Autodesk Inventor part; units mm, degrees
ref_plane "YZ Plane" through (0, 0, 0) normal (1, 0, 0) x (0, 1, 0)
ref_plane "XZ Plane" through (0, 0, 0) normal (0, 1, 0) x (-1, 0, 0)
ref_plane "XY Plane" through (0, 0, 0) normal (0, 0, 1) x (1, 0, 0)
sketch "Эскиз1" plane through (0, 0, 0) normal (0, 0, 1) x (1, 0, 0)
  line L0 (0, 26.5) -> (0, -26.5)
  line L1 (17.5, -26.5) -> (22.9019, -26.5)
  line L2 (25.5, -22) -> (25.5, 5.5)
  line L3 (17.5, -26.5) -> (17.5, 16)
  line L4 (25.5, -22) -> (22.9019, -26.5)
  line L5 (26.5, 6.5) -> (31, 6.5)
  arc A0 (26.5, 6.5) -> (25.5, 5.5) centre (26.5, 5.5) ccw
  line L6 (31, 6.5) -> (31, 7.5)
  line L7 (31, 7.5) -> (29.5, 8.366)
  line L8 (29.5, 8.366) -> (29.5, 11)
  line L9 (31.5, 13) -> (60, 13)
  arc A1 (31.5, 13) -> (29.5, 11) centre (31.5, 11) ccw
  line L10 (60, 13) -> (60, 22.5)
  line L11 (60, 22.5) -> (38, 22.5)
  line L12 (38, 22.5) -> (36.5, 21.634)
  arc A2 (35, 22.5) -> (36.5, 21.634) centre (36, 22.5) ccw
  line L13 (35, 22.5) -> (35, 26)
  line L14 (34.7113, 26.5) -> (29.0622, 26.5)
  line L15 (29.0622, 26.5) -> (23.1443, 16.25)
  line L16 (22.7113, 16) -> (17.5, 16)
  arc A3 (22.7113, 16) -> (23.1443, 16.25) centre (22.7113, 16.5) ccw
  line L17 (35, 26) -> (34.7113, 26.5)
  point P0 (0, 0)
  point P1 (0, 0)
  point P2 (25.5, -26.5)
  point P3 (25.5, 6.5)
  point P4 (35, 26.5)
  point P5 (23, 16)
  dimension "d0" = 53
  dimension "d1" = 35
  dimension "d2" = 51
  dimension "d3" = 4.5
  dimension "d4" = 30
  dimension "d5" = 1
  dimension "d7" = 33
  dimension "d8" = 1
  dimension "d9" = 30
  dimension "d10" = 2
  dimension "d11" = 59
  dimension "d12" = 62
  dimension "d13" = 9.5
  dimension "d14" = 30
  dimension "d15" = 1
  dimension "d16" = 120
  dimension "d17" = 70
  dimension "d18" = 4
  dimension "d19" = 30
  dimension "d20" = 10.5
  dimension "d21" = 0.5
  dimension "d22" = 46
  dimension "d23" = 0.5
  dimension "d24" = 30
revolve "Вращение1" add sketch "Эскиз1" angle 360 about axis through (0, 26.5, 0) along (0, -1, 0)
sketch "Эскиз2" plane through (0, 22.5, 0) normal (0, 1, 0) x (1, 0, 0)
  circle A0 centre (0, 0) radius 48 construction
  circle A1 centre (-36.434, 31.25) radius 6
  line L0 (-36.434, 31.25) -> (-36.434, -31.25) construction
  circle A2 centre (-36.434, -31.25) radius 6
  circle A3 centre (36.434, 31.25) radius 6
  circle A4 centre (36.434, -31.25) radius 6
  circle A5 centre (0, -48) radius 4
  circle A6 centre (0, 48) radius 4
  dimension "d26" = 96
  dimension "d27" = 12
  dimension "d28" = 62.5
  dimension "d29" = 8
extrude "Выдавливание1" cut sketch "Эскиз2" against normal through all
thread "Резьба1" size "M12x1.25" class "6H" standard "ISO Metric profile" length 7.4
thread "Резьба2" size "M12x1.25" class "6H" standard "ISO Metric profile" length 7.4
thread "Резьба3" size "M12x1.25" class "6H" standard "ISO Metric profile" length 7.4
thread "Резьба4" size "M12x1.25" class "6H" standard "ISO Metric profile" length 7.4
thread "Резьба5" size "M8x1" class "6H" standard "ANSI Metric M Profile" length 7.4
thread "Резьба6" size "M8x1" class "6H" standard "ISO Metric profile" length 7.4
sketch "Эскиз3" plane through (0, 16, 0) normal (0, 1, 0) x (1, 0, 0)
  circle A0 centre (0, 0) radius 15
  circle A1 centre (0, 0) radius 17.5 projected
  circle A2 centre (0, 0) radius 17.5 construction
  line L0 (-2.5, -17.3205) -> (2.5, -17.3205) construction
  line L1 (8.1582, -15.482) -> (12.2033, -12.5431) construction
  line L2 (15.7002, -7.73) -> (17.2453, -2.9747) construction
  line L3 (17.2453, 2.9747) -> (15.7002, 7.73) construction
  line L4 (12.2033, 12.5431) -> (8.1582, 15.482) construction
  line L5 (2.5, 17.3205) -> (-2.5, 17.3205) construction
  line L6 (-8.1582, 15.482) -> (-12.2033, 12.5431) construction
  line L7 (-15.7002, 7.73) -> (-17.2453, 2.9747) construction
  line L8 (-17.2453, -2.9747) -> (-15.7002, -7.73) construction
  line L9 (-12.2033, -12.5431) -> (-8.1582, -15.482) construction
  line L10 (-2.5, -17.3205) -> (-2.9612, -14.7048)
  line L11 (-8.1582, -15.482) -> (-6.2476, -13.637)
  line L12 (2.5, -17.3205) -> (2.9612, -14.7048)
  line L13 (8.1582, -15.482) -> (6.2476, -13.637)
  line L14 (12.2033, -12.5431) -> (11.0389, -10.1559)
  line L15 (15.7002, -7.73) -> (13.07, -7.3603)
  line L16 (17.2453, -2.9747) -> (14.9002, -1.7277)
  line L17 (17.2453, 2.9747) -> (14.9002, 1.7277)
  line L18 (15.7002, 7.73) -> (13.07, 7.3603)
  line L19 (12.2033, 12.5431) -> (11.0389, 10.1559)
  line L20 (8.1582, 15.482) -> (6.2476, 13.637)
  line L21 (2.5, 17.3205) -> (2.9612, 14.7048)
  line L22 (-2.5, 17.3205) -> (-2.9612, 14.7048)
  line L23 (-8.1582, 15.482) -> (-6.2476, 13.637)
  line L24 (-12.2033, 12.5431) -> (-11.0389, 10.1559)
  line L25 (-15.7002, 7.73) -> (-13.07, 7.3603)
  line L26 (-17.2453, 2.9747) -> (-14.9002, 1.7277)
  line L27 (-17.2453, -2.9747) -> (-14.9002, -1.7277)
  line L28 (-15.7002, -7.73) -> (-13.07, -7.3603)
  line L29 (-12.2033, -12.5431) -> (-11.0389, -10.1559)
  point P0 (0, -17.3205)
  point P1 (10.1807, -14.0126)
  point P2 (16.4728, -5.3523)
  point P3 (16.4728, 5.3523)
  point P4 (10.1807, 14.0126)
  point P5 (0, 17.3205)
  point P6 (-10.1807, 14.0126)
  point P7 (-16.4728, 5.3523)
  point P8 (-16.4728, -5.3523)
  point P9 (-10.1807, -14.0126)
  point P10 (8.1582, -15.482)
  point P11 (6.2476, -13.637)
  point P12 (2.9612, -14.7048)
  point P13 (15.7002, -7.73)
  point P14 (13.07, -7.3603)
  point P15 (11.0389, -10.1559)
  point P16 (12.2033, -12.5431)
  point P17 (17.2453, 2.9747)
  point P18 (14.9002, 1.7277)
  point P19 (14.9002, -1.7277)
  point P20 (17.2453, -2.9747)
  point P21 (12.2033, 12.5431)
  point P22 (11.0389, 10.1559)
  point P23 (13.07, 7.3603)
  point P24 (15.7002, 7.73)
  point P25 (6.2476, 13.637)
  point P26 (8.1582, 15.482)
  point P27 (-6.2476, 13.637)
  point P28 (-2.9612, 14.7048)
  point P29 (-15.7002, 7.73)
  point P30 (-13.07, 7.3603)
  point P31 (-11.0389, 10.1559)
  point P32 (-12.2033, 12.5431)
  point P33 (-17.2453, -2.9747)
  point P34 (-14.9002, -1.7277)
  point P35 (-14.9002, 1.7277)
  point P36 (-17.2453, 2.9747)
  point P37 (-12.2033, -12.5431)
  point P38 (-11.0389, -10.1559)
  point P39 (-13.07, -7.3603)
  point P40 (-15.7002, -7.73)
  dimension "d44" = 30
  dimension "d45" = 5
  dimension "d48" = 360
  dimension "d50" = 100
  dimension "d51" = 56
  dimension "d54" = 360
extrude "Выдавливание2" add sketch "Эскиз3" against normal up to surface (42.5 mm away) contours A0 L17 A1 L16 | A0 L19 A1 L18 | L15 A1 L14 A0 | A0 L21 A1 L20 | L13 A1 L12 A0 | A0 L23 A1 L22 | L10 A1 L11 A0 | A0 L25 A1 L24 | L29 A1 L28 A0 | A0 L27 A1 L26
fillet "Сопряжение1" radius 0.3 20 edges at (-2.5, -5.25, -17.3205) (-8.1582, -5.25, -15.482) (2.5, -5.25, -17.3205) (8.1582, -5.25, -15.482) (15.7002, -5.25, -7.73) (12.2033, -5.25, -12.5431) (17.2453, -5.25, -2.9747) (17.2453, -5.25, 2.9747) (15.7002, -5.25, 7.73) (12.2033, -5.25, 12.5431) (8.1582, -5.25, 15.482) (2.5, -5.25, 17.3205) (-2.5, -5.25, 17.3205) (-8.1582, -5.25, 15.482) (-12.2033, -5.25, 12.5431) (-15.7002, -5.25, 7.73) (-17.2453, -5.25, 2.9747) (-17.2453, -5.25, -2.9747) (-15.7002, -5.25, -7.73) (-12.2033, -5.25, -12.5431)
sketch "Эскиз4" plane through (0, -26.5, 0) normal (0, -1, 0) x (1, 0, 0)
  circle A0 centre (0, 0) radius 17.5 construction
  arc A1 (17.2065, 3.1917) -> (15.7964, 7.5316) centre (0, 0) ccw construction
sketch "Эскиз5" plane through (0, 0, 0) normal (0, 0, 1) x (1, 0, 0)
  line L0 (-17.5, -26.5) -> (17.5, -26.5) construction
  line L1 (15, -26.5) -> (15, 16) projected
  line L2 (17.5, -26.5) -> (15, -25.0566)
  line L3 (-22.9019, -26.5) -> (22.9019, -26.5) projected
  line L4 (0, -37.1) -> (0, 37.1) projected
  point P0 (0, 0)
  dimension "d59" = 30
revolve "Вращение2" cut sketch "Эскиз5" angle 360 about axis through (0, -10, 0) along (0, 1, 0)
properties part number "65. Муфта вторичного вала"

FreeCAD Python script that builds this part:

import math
import FreeCAD as App
import Part
import Sketcher
Q = App.Units.Quantity


def edges_at(feature, points):
    """Names of the edges that pass closest to the given points."""
    edges = feature.Shape.Edges
    near = lambda p: min(range(len(edges)), key=lambda i: edges[i].distToShape(Part.Vertex(*p))[0])
    return sorted({f"Edge{near(p) + 1}" for p in points})


def add_polygon(sketch, points):
    """Adds a closed chain of lines whose ends are joined by coincident constraints."""
    first, n = sketch.GeometryCount, len(points)
    for a, b in zip(points, points[1:] + points[:1]):
        sketch.addGeometry(Part.LineSegment(App.Vector(*a, 0), App.Vector(*b, 0)), False)
    for i in range(n):
        sketch.addConstraint(Sketcher.Constraint("Coincident", first + i, 2, first + (i + 1) % n, 1))

doc = App.newDocument("Part")
body = doc.addObject("PartDesign::Body", "Body")

# Sketch on XY plane
sketch1 = body.newObject("Sketcher::SketchObject", "Sketch")
sketch1.AttachmentSupport = (doc.getObject("XY_Plane"), [""])
sketch1.MapMode = "FlatFace"
sketch1.addGeometry([
    Part.LineSegment(App.Vector(17.5, 16, 0), App.Vector(17.5, -26.5, 0)),  # 0
    Part.LineSegment(App.Vector(17.5, -26.5, 0), App.Vector(22.9019, -26.5, 0)),  # 1
    Part.LineSegment(App.Vector(22.9019, -26.5, 0), App.Vector(25.5, -22, 0)),  # 2
    Part.LineSegment(App.Vector(25.5, -22, 0), App.Vector(25.5, 5.5, 0)),  # 3
    Part.ArcOfCircle(Part.Circle(App.Vector(26.5, 5.5, 0), App.Vector(0, 0, 1), 1), math.radians(90), math.radians(180)),  # 4
    Part.LineSegment(App.Vector(26.5, 6.5, 0), App.Vector(31, 6.5, 0)),  # 5
    Part.LineSegment(App.Vector(31, 6.5, 0), App.Vector(31, 7.5, 0)),  # 6
    Part.LineSegment(App.Vector(31, 7.5, 0), App.Vector(29.5, 8.366, 0)),  # 7
    Part.LineSegment(App.Vector(29.5, 8.366, 0), App.Vector(29.5, 11, 0)),  # 8
    Part.ArcOfCircle(Part.Circle(App.Vector(31.5, 11, 0), App.Vector(0, 0, 1), 2), math.radians(90), math.radians(180)),  # 9
    Part.LineSegment(App.Vector(31.5, 13, 0), App.Vector(60, 13, 0)),  # 10
    Part.LineSegment(App.Vector(60, 13, 0), App.Vector(60, 22.5, 0)),  # 11
    Part.LineSegment(App.Vector(60, 22.5, 0), App.Vector(38, 22.5, 0)),  # 12
    Part.LineSegment(App.Vector(38, 22.5, 0), App.Vector(36.5, 21.634, 0)),  # 13
    Part.ArcOfCircle(Part.Circle(App.Vector(36, 22.5, 0), App.Vector(0, 0, 1), 1), math.radians(180), math.radians(300.000728)),  # 14
    Part.LineSegment(App.Vector(35, 22.5, 0), App.Vector(35, 26, 0)),  # 15
    Part.LineSegment(App.Vector(35, 26, 0), App.Vector(34.7113, 26.5, 0)),  # 16
    Part.LineSegment(App.Vector(34.7113, 26.5, 0), App.Vector(29.0622, 26.5, 0)),  # 17
    Part.LineSegment(App.Vector(29.0622, 26.5, 0), App.Vector(23.1443, 16.25, 0)),  # 18
    Part.ArcOfCircle(Part.Circle(App.Vector(22.7113, 16.5, 0), App.Vector(0, 0, 1), 0.5), math.radians(-90), math.radians(-30.000728)),  # 19
    Part.LineSegment(App.Vector(22.7113, 16, 0), App.Vector(17.5, 16, 0)),  # 20
], False)
sketch1.addConstraint([
    Sketcher.Constraint("Coincident", 0, 2, 1, 1),
    Sketcher.Constraint("Coincident", 1, 2, 2, 1),
    Sketcher.Constraint("Coincident", 2, 2, 3, 1),
    Sketcher.Constraint("Tangent", 3, 2, 4, 2),
    Sketcher.Constraint("Tangent", 4, 1, 5, 1),
    Sketcher.Constraint("Coincident", 5, 2, 6, 1),
    Sketcher.Constraint("Coincident", 6, 2, 7, 1),
    Sketcher.Constraint("Coincident", 7, 2, 8, 1),
    Sketcher.Constraint("Tangent", 8, 2, 9, 2),
    Sketcher.Constraint("Tangent", 9, 1, 10, 1),
    Sketcher.Constraint("Coincident", 10, 2, 11, 1),
    Sketcher.Constraint("Coincident", 11, 2, 12, 1),
    Sketcher.Constraint("Coincident", 12, 2, 13, 1),
    Sketcher.Constraint("Tangent", 13, 2, 14, 2),
    Sketcher.Constraint("Tangent", 14, 1, 15, 1),
    Sketcher.Constraint("Coincident", 15, 2, 16, 1),
    Sketcher.Constraint("Coincident", 16, 2, 17, 1),
    Sketcher.Constraint("Coincident", 17, 2, 18, 1),
    Sketcher.Constraint("Tangent", 18, 2, 19, 2),
    Sketcher.Constraint("Tangent", 19, 1, 20, 1),
    Sketcher.Constraint("Coincident", 20, 2, 0, 1),
    Sketcher.Constraint("Vertical", 0),
    Sketcher.Constraint("Horizontal", 1),
    Sketcher.Constraint("Vertical", 3),
    Sketcher.Constraint("Horizontal", 5),
    Sketcher.Constraint("Vertical", 6),
    Sketcher.Constraint("Vertical", 8),
    Sketcher.Constraint("Horizontal", 10),
    Sketcher.Constraint("Vertical", 11),
    Sketcher.Constraint("Horizontal", 12),
    Sketcher.Constraint("Vertical", 15),
    Sketcher.Constraint("Horizontal", 17),
    Sketcher.Constraint("Horizontal", 20),
    Sketcher.Constraint("Equal", 4, 14),
    Sketcher.Constraint("Perpendicular", 2, 7),
    Sketcher.Constraint("Perpendicular", 13, 16),
    Sketcher.Constraint("Perpendicular", 7, 18),
    Sketcher.Constraint("Horizontal", 14, 3, 11, 2),
    Sketcher.Constraint("Equal", 7, 13),
    Sketcher.Constraint("Radius", 4, 1.0),
    Sketcher.Constraint("Radius", 9, 2.0),
    Sketcher.Constraint("Radius", 19, 0.5),
    Sketcher.Constraint("DistanceY", 6, 1, 6, 2, 1.0),
    Sketcher.Constraint("Angle", 18, Q("-120.0003 deg")),
    Sketcher.Constraint("DistanceX", 5, 1, 5, 2, 4.5),
    Sketcher.Constraint("DistanceY", 11, 1, 11, 2, 9.5),
    Sketcher.Constraint("DistanceX", -1, 1, 14, 1, 35.0),
    Sketcher.Constraint("DistanceY", 2, 2, 9, 3, 33.0),
    Sketcher.Constraint("DistanceX", 14, 3, 12, 2, 2.0),
    Sketcher.Constraint("DistanceY", 14, 1, 16, 2, 4.0),
    Sketcher.Constraint("DistanceX", 9, 3, 14, 3, 4.5),
    Sketcher.Constraint("DistanceY", 1, 2, 2, 2, 4.5),
    Sketcher.Constraint("DistanceY", 4, 1, 9, 3, 4.5),
    Sketcher.Constraint("DistanceY", 15, 2, 16, 2, 0.5),
    Sketcher.Constraint("DistanceY", 4, 1, 20, 2, 9.5),
    Sketcher.Constraint("DistanceX", 12, 2, 12, 1, 22.0),
    Sketcher.Constraint("DistanceY", -1, 1, 9, 3, 11.0),
    Sketcher.Constraint("DistanceX", 0, 2, 4, 3, 9.0),
    Sketcher.Constraint("DistanceX", 17, 2, 17, 1, 5.649),
])
revolution = body.newObject("PartDesign::Revolution", "Revolution")
revolution.Profile = sketch1
revolution.ReferenceAxis = (sketch1, ["V_Axis"])
revolution.Angle = 360

# Sketch on XZ plane
sketch2 = body.newObject("Sketcher::SketchObject", "Sketch001")
sketch2.AttachmentSupport = (doc.getObject("XZ_Plane"), [""])
sketch2.MapMode = "FlatFace"
sketch2.AttachmentOffset = App.Placement(App.Vector(0, 0, -22.5), App.Rotation())
sketch2.addGeometry([
    Part.Circle(App.Vector(-36.434, -31.25, 0), App.Vector(0, 0, 1), 6),  # 0
    Part.Circle(App.Vector(-36.434, 31.25, 0), App.Vector(0, 0, 1), 6),  # 1
    Part.Circle(App.Vector(36.434, -31.25, 0), App.Vector(0, 0, 1), 6),  # 2
    Part.Circle(App.Vector(36.434, 31.25, 0), App.Vector(0, 0, 1), 6),  # 3
    Part.Circle(App.Vector(0, 48, 0), App.Vector(0, 0, 1), 4),  # 4
    Part.Circle(App.Vector(0, -48, 0), App.Vector(0, 0, 1), 4),  # 5
], False)
sketch2.addConstraint([
    Sketcher.Constraint("Equal", 0, 1),
    Sketcher.Constraint("Equal", 1, 2),
    Sketcher.Constraint("Equal", 2, 3),
    Sketcher.Constraint("Equal", 4, 5),
    Sketcher.Constraint("Symmetric", 1, 3, 2, 3, -1, 1),
    Sketcher.Constraint("Symmetric", 0, 3, 3, 3, -1, 1),
    Sketcher.Constraint("Symmetric", 4, 3, 5, 3, -1, 1),
    Sketcher.Constraint("Symmetric", 0, 3, 2, 3, -2),
    Sketcher.Constraint("PointOnObject", 4, 3, -2),
    Sketcher.Constraint("Diameter", 0, 12.0),
    Sketcher.Constraint("Diameter", 4, 8.0),
    Sketcher.Constraint("DistanceY", 5, 3, 4, 3, 96.0),
    Sketcher.Constraint("DistanceY", 0, 3, 1, 3, 62.5),
    Sketcher.Constraint("DistanceX", 0, 3, -1, 1, 36.434),
])
pocket1 = body.newObject("PartDesign::Pocket", "Pocket")
pocket1.Profile = sketch2
pocket1.Type = "ThroughAll"
pocket1.Reversed = True

# Sketch on XZ plane
sketch3 = body.newObject("Sketcher::SketchObject", "Sketch002")
sketch3.AttachmentSupport = (doc.getObject("XZ_Plane"), [""])
sketch3.MapMode = "FlatFace"
sketch3.AttachmentOffset = App.Placement(App.Vector(0, 0, -16), App.Rotation())
sketch3.addGeometry([
    Part.ArcOfCircle(Part.Circle(App.Vector(0, 0, 0), App.Vector(0, 0, 1), 15), math.radians(-6.613994), math.radians(6.613994)),  # 0
    Part.LineSegment(App.Vector(14.9002, 1.7277, 0), App.Vector(17.2453, 2.9747, 0)),  # 1
    Part.ArcOfCircle(Part.Circle(App.Vector(0, 0, 0), App.Vector(0, 0, 1), 17.5), math.radians(-9.786835), math.radians(9.786835)),  # 2
    Part.LineSegment(App.Vector(17.2453, -2.9747, 0), App.Vector(14.9002, -1.7277, 0)),  # 3
    Part.ArcOfCircle(Part.Circle(App.Vector(0, 0, 0), App.Vector(0, 0, 1), 15), math.radians(-42.614371), math.radians(-29.385802)),  # 4
    Part.LineSegment(App.Vector(13.07, -7.3603, 0), App.Vector(15.7002, -7.73, 0)),  # 5
    Part.ArcOfCircle(Part.Circle(App.Vector(0, 0, 0), App.Vector(0, 0, 1), 17.5), math.radians(-45.786696), math.radians(-26.213348)),  # 6
    Part.LineSegment(App.Vector(12.2033, -12.5431, 0), App.Vector(11.0389, -10.1559, 0)),  # 7
    Part.LineSegment(App.Vector(15.7002, 7.73, 0), App.Vector(13.07, 7.3603, 0)),  # 8
    Part.ArcOfCircle(Part.Circle(App.Vector(0, 0, 0), App.Vector(0, 0, 1), 15), math.radians(29.385802), math.radians(42.614371)),  # 9
    Part.LineSegment(App.Vector(11.0389, 10.1559, 0), App.Vector(12.2033, 12.5431, 0)),  # 10
    Part.ArcOfCircle(Part.Circle(App.Vector(0, 0, 0), App.Vector(0, 0, 1), 17.5), math.radians(26.213348), math.radians(45.786696)),  # 11
    Part.ArcOfCircle(Part.Circle(App.Vector(0, 0, 0), App.Vector(0, 0, 1), 15), math.radians(-78.614258), math.radians(-65.385782)),  # 12
    Part.LineSegment(App.Vector(6.2476, -13.637, 0), App.Vector(8.1582, -15.482, 0)),  # 13
    Part.ArcOfCircle(Part.Circle(App.Vector(0, 0, 0), App.Vector(0, 0, 1), 17.5), math.radians(-81.786786), math.radians(-62.213127)),  # 14
    Part.LineSegment(App.Vector(2.5, -17.3205, 0), App.Vector(2.9612, -14.7048, 0)),  # 15
    Part.LineSegment(App.Vector(8.1582, 15.482, 0), App.Vector(6.2476, 13.637, 0)),  # 16
    Part.ArcOfCircle(Part.Circle(App.Vector(0, 0, 0), App.Vector(0, 0, 1), 15), math.radians(65.385782), math.radians(78.614258)),  # 17
    Part.LineSegment(App.Vector(2.9612, 14.7048, 0), App.Vector(2.5, 17.3205, 0)),  # 18
    Part.ArcOfCircle(Part.Circle(App.Vector(0, 0, 0), App.Vector(0, 0, 1), 17.5), math.radians(62.213127), math.radians(81.786786)),  # 19
    Part.ArcOfCircle(Part.Circle(App.Vector(0, 0, 0), App.Vector(0, 0, 1), 15), math.radians(-114.614218), math.radians(-101.385742)),  # 20
    Part.LineSegment(App.Vector(-2.9612, -14.7048, 0), App.Vector(-2.5, -17.3205, 0)),  # 21
    Part.ArcOfCircle(Part.Circle(App.Vector(0, 0, 0), App.Vector(0, 0, 1), 17.5), math.radians(-117.786873), math.radians(-98.213214)),  # 22
    Part.LineSegment(App.Vector(-8.1582, -15.482, 0), App.Vector(-6.2476, -13.637, 0)),  # 23
    Part.LineSegment(App.Vector(-2.5, 17.3205, 0), App.Vector(-2.9612, 14.7048, 0)),  # 24
    Part.ArcOfCircle(Part.Circle(App.Vector(0, 0, 0), App.Vector(0, 0, 1), 15), math.radians(101.385742), math.radians(114.614218)),  # 25
    Part.LineSegment(App.Vector(-6.2476, 13.637, 0), App.Vector(-8.1582, 15.482, 0)),  # 26
    Part.ArcOfCircle(Part.Circle(App.Vector(0, 0, 0), App.Vector(0, 0, 1), 17.5), math.radians(98.213214), math.radians(117.786873)),  # 27
    Part.ArcOfCircle(Part.Circle(App.Vector(0, 0, 0), App.Vector(0, 0, 1), 15), math.radians(-150.614198), math.radians(-137.385629)),  # 28
    Part.LineSegment(App.Vector(-11.0389, -10.1559, 0), App.Vector(-12.2033, -12.5431, 0)),  # 29
    Part.ArcOfCircle(Part.Circle(App.Vector(0, 0, 0), App.Vector(0, 0, 1), 17.5), math.radians(-153.786652), math.radians(-134.213304)),  # 30
    Part.LineSegment(App.Vector(-15.7002, -7.73, 0), App.Vector(-13.07, -7.3603, 0)),  # 31
    Part.LineSegment(App.Vector(-12.2033, 12.5431, 0), App.Vector(-11.0389, 10.1559, 0)),  # 32
    Part.ArcOfCircle(Part.Circle(App.Vector(0, 0, 0), App.Vector(0, 0, 1), 15), math.radians(137.385629), math.radians(150.614198)),  # 33
    Part.LineSegment(App.Vector(-13.07, 7.3603, 0), App.Vector(-15.7002, 7.73, 0)),  # 34
    Part.ArcOfCircle(Part.Circle(App.Vector(0, 0, 0), App.Vector(0, 0, 1), 17.5), math.radians(134.213304), math.radians(153.786652)),  # 35
    Part.ArcOfCircle(Part.Circle(App.Vector(0, 0, 0), App.Vector(0, 0, 1), 15), math.radians(173.386006), math.radians(186.613994)),  # 36
    Part.LineSegment(App.Vector(-14.9002, -1.7277, 0), App.Vector(-17.2453, -2.9747, 0)),  # 37
    Part.ArcOfCircle(Part.Circle(App.Vector(0, 0, 0), App.Vector(0, 0, 1), 17.5), math.radians(170.213165), math.radians(189.786835)),  # 38
    Part.LineSegment(App.Vector(-17.2453, 2.9747, 0), App.Vector(-14.9002, 1.7277, 0)),  # 39
], False)
sketch3.addConstraint([
    Sketcher.Constraint("Coincident", 0, 2, 1, 1),
    Sketcher.Constraint("Coincident", 1, 2, 2, 2),
    Sketcher.Constraint("Coincident", 2, 1, 3, 1),
    Sketcher.Constraint("Coincident", 3, 2, 0, 1),
    Sketcher.Constraint("Coincident", 4, 2, 5, 1),
    Sketcher.Constraint("Coincident", 5, 2, 6, 2),
    Sketcher.Constraint("Coincident", 6, 1, 7, 1),
    Sketcher.Constraint("Coincident", 7, 2, 4, 1),
    Sketcher.Constraint("Coincident", 8, 2, 9, 1),
    Sketcher.Constraint("Coincident", 9, 2, 10, 1),
    Sketcher.Constraint("Coincident", 10, 2, 11, 2),
    Sketcher.Constraint("Coincident", 11, 1, 8, 1),
    Sketcher.Constraint("Coincident", 12, 2, 13, 1),
    Sketcher.Constraint("Coincident", 13, 2, 14, 2),
    Sketcher.Constraint("Coincident", 14, 1, 15, 1),
    Sketcher.Constraint("Coincident", 15, 2, 12, 1),
    Sketcher.Constraint("Coincident", 16, 2, 17, 1),
    Sketcher.Constraint("Coincident", 17, 2, 18, 1),
    Sketcher.Constraint("Coincident", 18, 2, 19, 2),
    Sketcher.Constraint("Coincident", 19, 1, 16, 1),
    Sketcher.Constraint("Coincident", 20, 2, 21, 1),
    Sketcher.Constraint("Coincident", 21, 2, 22, 2),
    Sketcher.Constraint("Coincident", 22, 1, 23, 1),
    Sketcher.Constraint("Coincident", 23, 2, 20, 1),
    Sketcher.Constraint("Coincident", 24, 2, 25, 1),
    Sketcher.Constraint("Coincident", 25, 2, 26, 1),
    Sketcher.Constraint("Coincident", 26, 2, 27, 2),
    Sketcher.Constraint("Coincident", 27, 1, 24, 1),
    Sketcher.Constraint("Coincident", 28, 2, 29, 1),
    Sketcher.Constraint("Coincident", 29, 2, 30, 2),
    Sketcher.Constraint("Coincident", 30, 1, 31, 1),
    Sketcher.Constraint("Coincident", 31, 2, 28, 1),
    Sketcher.Constraint("Coincident", 32, 2, 33, 1),
    Sketcher.Constraint("Coincident", 33, 2, 34, 1),
    Sketcher.Constraint("Coincident", 34, 2, 35, 2),
    Sketcher.Constraint("Coincident", 35, 1, 32, 1),
    Sketcher.Constraint("Coincident", 36, 2, 37, 1),
    Sketcher.Constraint("Coincident", 37, 2, 38, 2),
    Sketcher.Constraint("Coincident", 38, 1, 39, 1),
    Sketcher.Constraint("Coincident", 39, 2, 36, 1),
    Sketcher.Constraint("Coincident", 0, 3, -1, 1),
    Sketcher.Constraint("Coincident", 2, 3, -1, 1),
    Sketcher.Constraint("Coincident", 4, 3, -1, 1),
    Sketcher.Constraint("Coincident", 6, 3, -1, 1),
    Sketcher.Constraint("Coincident", 9, 3, -1, 1),
    Sketcher.Constraint("Coincident", 11, 3, -1, 1),
    Sketcher.Constraint("Coincident", 12, 3, -1, 1),
    Sketcher.Constraint("Coincident", 14, 3, -1, 1),
    Sketcher.Constraint("Coincident", 17, 3, -1, 1),
    Sketcher.Constraint("Coincident", 19, 3, -1, 1),
    Sketcher.Constraint("Coincident", 20, 3, -1, 1),
    Sketcher.Constraint("Coincident", 22, 3, -1, 1),
    Sketcher.Constraint("Coincident", 25, 3, -1, 1),
    Sketcher.Constraint("Coincident", 27, 3, -1, 1),
    Sketcher.Constraint("Coincident", 28, 3, -1, 1),
    Sketcher.Constraint("Coincident", 30, 3, -1, 1),
    Sketcher.Constraint("Coincident", 33, 3, -1, 1),
    Sketcher.Constraint("Coincident", 35, 3, -1, 1),
    Sketcher.Constraint("Coincident", 36, 3, -1, 1),
    Sketcher.Constraint("Coincident", 38, 3, -1, 1),
    Sketcher.Constraint("Equal", 0, 4),
    Sketcher.Constraint("Equal", 2, 6),
    Sketcher.Constraint("Equal", 4, 9),
    Sketcher.Constraint("Equal", 6, 11),
    Sketcher.Constraint("Equal", 9, 12),
    Sketcher.Constraint("Equal", 11, 14),
    Sketcher.Constraint("Equal", 12, 17),
    Sketcher.Constraint("Equal", 14, 19),
    Sketcher.Constraint("Equal", 17, 20),
    Sketcher.Constraint("Equal", 19, 22),
    Sketcher.Constraint("Equal", 20, 25),
    Sketcher.Constraint("Equal", 22, 27),
    Sketcher.Constraint("Equal", 25, 28),
    Sketcher.Constraint("Equal", 27, 30),
    Sketcher.Constraint("Equal", 28, 33),
    Sketcher.Constraint("Equal", 30, 35),
    Sketcher.Constraint("Equal", 33, 36),
    Sketcher.Constraint("Equal", 35, 38),
    Sketcher.Constraint("Parallel", 18, 21),
    Sketcher.Constraint("Parallel", 16, 23),
    Sketcher.Constraint("Parallel", 15, 24),
    Sketcher.Constraint("Parallel", 13, 26),
    Sketcher.Constraint("Parallel", 10, 29),
    Sketcher.Constraint("Parallel", 8, 31),
    Sketcher.Constraint("Parallel", 7, 32),
    Sketcher.Constraint("Parallel", 5, 34),
    Sketcher.Constraint("Parallel", 1, 37),
    Sketcher.Constraint("Parallel", 3, 39),
    Sketcher.Constraint("Horizontal", 15, 2, 20, 2),
    Sketcher.Constraint("Horizontal", 14, 1, 21, 2),
    Sketcher.Constraint("Horizontal", 13, 2, 22, 1),
    Sketcher.Constraint("Horizontal", 12, 2, 23, 2),
    Sketcher.Constraint("Horizontal", 17, 2, 24, 2),
    Sketcher.Constraint("Horizontal", 16, 2, 25, 2),
    Sketcher.Constraint("Horizontal", 7, 2, 28, 2),
    Sketcher.Constraint("Horizontal", 6, 1, 29, 2),
    Sketcher.Constraint("Horizontal", 5, 2, 30, 1),
    Sketcher.Constraint("Horizontal", 4, 2, 31, 2),
    Sketcher.Constraint("Horizontal", 9, 2, 32, 2),
    Sketcher.Constraint("Horizontal", 8, 2, 33, 2),
    Sketcher.Constraint("Horizontal", 3, 2, 36, 2),
    Sketcher.Constraint("Horizontal", 2, 1, 37, 2),
    Sketcher.Constraint("Horizontal", 1, 2, 38, 1),
    Sketcher.Constraint("Vertical", 1, 2, 2, 1),
    Sketcher.Constraint("Vertical", 4, 2, 8, 2),
    Sketcher.Constraint("Vertical", 7, 2, 9, 2),
    Sketcher.Constraint("Vertical", 12, 2, 16, 2),
    Sketcher.Constraint("Vertical", 15, 2, 17, 2),
    Sketcher.Constraint("Equal", 3, 5),
    Sketcher.Constraint("Equal", 5, 7),
    Sketcher.Constraint("Equal", 10, 13),
    Sketcher.Constraint("Equal", 13, 15),
    Sketcher.Constraint("Radius", 0, 15.0),
    Sketcher.Constraint("Angle", 18, Q("99.9996 deg")),
    Sketcher.Constraint("DistanceX", 21, 2, 14, 1, 5.0),
    Sketcher.Constraint("Radius", 2, 17.5),
    Sketcher.Constraint("Angle", 5, Q("-8.001 deg")),
    Sketcher.Constraint("Angle", 13, Q("-43.9993 deg")),
    Sketcher.Constraint("DistanceX", 20, 2, 7, 2, 14.0),
    Sketcher.Constraint("DistanceX", 3, 2, 5, 2, 0.8),
])
pad1 = body.newObject("PartDesign::Pad", "Pad")
pad1.Profile = sketch3
pad1.Length = 42.5
doc.recompute()

fillet = body.newObject("PartDesign::Fillet", "Fillet")
fillet.Base = (pad1, edges_at(pad1, [
    (-2.5, -5.25, -17.32),
    (-8.158, -5.25, -15.482),
    (2.5, -5.25, -17.32),
    (8.158, -5.25, -15.482),
    (15.7, -5.25, -7.73),
    (12.203, -5.25, -12.543),
    (17.245, -5.25, -2.975),
    (17.245, -5.25, 2.975),
    (15.7, -5.25, 7.73),
    (12.203, -5.25, 12.543),
    (8.158, -5.25, 15.482),
    (2.5, -5.25, 17.32),
    (-2.5, -5.25, 17.32),
    (-8.158, -5.25, 15.482),
    (-12.203, -5.25, 12.543),
    (-15.7, -5.25, 7.73),
    (-17.245, -5.25, 2.975),
    (-17.245, -5.25, -2.975),
    (-15.7, -5.25, -7.73),
    (-12.203, -5.25, -12.543),
]))
fillet.Radius = 0.3

# Sketch on XY plane
sketch4 = body.newObject("Sketcher::SketchObject", "Sketch003")
sketch4.AttachmentSupport = (doc.getObject("XY_Plane"), [""])
sketch4.MapMode = "FlatFace"
add_polygon(sketch4, [(15, -25.0566), (15, -26.5), (17.5, -26.5)])  # lines 0-2
sketch4.addConstraint([
    Sketcher.Constraint("Vertical", 0),
    Sketcher.Constraint("Horizontal", 1),
    Sketcher.Constraint("Angle", 2, Q("149.9996 deg")),
    Sketcher.Constraint("DistanceX", 1, 1, 1, 2, 2.5),
    Sketcher.Constraint("DistanceX", -1, 1, 0, 2, 15.0),
    Sketcher.Constraint("DistanceY", 0, 2, -1, 1, 26.5),
])
groove = body.newObject("PartDesign::Groove", "Groove")
groove.Profile = sketch4
groove.ReferenceAxis = (sketch4, ["V_Axis"])
groove.Angle = 360

doc.recompute()
